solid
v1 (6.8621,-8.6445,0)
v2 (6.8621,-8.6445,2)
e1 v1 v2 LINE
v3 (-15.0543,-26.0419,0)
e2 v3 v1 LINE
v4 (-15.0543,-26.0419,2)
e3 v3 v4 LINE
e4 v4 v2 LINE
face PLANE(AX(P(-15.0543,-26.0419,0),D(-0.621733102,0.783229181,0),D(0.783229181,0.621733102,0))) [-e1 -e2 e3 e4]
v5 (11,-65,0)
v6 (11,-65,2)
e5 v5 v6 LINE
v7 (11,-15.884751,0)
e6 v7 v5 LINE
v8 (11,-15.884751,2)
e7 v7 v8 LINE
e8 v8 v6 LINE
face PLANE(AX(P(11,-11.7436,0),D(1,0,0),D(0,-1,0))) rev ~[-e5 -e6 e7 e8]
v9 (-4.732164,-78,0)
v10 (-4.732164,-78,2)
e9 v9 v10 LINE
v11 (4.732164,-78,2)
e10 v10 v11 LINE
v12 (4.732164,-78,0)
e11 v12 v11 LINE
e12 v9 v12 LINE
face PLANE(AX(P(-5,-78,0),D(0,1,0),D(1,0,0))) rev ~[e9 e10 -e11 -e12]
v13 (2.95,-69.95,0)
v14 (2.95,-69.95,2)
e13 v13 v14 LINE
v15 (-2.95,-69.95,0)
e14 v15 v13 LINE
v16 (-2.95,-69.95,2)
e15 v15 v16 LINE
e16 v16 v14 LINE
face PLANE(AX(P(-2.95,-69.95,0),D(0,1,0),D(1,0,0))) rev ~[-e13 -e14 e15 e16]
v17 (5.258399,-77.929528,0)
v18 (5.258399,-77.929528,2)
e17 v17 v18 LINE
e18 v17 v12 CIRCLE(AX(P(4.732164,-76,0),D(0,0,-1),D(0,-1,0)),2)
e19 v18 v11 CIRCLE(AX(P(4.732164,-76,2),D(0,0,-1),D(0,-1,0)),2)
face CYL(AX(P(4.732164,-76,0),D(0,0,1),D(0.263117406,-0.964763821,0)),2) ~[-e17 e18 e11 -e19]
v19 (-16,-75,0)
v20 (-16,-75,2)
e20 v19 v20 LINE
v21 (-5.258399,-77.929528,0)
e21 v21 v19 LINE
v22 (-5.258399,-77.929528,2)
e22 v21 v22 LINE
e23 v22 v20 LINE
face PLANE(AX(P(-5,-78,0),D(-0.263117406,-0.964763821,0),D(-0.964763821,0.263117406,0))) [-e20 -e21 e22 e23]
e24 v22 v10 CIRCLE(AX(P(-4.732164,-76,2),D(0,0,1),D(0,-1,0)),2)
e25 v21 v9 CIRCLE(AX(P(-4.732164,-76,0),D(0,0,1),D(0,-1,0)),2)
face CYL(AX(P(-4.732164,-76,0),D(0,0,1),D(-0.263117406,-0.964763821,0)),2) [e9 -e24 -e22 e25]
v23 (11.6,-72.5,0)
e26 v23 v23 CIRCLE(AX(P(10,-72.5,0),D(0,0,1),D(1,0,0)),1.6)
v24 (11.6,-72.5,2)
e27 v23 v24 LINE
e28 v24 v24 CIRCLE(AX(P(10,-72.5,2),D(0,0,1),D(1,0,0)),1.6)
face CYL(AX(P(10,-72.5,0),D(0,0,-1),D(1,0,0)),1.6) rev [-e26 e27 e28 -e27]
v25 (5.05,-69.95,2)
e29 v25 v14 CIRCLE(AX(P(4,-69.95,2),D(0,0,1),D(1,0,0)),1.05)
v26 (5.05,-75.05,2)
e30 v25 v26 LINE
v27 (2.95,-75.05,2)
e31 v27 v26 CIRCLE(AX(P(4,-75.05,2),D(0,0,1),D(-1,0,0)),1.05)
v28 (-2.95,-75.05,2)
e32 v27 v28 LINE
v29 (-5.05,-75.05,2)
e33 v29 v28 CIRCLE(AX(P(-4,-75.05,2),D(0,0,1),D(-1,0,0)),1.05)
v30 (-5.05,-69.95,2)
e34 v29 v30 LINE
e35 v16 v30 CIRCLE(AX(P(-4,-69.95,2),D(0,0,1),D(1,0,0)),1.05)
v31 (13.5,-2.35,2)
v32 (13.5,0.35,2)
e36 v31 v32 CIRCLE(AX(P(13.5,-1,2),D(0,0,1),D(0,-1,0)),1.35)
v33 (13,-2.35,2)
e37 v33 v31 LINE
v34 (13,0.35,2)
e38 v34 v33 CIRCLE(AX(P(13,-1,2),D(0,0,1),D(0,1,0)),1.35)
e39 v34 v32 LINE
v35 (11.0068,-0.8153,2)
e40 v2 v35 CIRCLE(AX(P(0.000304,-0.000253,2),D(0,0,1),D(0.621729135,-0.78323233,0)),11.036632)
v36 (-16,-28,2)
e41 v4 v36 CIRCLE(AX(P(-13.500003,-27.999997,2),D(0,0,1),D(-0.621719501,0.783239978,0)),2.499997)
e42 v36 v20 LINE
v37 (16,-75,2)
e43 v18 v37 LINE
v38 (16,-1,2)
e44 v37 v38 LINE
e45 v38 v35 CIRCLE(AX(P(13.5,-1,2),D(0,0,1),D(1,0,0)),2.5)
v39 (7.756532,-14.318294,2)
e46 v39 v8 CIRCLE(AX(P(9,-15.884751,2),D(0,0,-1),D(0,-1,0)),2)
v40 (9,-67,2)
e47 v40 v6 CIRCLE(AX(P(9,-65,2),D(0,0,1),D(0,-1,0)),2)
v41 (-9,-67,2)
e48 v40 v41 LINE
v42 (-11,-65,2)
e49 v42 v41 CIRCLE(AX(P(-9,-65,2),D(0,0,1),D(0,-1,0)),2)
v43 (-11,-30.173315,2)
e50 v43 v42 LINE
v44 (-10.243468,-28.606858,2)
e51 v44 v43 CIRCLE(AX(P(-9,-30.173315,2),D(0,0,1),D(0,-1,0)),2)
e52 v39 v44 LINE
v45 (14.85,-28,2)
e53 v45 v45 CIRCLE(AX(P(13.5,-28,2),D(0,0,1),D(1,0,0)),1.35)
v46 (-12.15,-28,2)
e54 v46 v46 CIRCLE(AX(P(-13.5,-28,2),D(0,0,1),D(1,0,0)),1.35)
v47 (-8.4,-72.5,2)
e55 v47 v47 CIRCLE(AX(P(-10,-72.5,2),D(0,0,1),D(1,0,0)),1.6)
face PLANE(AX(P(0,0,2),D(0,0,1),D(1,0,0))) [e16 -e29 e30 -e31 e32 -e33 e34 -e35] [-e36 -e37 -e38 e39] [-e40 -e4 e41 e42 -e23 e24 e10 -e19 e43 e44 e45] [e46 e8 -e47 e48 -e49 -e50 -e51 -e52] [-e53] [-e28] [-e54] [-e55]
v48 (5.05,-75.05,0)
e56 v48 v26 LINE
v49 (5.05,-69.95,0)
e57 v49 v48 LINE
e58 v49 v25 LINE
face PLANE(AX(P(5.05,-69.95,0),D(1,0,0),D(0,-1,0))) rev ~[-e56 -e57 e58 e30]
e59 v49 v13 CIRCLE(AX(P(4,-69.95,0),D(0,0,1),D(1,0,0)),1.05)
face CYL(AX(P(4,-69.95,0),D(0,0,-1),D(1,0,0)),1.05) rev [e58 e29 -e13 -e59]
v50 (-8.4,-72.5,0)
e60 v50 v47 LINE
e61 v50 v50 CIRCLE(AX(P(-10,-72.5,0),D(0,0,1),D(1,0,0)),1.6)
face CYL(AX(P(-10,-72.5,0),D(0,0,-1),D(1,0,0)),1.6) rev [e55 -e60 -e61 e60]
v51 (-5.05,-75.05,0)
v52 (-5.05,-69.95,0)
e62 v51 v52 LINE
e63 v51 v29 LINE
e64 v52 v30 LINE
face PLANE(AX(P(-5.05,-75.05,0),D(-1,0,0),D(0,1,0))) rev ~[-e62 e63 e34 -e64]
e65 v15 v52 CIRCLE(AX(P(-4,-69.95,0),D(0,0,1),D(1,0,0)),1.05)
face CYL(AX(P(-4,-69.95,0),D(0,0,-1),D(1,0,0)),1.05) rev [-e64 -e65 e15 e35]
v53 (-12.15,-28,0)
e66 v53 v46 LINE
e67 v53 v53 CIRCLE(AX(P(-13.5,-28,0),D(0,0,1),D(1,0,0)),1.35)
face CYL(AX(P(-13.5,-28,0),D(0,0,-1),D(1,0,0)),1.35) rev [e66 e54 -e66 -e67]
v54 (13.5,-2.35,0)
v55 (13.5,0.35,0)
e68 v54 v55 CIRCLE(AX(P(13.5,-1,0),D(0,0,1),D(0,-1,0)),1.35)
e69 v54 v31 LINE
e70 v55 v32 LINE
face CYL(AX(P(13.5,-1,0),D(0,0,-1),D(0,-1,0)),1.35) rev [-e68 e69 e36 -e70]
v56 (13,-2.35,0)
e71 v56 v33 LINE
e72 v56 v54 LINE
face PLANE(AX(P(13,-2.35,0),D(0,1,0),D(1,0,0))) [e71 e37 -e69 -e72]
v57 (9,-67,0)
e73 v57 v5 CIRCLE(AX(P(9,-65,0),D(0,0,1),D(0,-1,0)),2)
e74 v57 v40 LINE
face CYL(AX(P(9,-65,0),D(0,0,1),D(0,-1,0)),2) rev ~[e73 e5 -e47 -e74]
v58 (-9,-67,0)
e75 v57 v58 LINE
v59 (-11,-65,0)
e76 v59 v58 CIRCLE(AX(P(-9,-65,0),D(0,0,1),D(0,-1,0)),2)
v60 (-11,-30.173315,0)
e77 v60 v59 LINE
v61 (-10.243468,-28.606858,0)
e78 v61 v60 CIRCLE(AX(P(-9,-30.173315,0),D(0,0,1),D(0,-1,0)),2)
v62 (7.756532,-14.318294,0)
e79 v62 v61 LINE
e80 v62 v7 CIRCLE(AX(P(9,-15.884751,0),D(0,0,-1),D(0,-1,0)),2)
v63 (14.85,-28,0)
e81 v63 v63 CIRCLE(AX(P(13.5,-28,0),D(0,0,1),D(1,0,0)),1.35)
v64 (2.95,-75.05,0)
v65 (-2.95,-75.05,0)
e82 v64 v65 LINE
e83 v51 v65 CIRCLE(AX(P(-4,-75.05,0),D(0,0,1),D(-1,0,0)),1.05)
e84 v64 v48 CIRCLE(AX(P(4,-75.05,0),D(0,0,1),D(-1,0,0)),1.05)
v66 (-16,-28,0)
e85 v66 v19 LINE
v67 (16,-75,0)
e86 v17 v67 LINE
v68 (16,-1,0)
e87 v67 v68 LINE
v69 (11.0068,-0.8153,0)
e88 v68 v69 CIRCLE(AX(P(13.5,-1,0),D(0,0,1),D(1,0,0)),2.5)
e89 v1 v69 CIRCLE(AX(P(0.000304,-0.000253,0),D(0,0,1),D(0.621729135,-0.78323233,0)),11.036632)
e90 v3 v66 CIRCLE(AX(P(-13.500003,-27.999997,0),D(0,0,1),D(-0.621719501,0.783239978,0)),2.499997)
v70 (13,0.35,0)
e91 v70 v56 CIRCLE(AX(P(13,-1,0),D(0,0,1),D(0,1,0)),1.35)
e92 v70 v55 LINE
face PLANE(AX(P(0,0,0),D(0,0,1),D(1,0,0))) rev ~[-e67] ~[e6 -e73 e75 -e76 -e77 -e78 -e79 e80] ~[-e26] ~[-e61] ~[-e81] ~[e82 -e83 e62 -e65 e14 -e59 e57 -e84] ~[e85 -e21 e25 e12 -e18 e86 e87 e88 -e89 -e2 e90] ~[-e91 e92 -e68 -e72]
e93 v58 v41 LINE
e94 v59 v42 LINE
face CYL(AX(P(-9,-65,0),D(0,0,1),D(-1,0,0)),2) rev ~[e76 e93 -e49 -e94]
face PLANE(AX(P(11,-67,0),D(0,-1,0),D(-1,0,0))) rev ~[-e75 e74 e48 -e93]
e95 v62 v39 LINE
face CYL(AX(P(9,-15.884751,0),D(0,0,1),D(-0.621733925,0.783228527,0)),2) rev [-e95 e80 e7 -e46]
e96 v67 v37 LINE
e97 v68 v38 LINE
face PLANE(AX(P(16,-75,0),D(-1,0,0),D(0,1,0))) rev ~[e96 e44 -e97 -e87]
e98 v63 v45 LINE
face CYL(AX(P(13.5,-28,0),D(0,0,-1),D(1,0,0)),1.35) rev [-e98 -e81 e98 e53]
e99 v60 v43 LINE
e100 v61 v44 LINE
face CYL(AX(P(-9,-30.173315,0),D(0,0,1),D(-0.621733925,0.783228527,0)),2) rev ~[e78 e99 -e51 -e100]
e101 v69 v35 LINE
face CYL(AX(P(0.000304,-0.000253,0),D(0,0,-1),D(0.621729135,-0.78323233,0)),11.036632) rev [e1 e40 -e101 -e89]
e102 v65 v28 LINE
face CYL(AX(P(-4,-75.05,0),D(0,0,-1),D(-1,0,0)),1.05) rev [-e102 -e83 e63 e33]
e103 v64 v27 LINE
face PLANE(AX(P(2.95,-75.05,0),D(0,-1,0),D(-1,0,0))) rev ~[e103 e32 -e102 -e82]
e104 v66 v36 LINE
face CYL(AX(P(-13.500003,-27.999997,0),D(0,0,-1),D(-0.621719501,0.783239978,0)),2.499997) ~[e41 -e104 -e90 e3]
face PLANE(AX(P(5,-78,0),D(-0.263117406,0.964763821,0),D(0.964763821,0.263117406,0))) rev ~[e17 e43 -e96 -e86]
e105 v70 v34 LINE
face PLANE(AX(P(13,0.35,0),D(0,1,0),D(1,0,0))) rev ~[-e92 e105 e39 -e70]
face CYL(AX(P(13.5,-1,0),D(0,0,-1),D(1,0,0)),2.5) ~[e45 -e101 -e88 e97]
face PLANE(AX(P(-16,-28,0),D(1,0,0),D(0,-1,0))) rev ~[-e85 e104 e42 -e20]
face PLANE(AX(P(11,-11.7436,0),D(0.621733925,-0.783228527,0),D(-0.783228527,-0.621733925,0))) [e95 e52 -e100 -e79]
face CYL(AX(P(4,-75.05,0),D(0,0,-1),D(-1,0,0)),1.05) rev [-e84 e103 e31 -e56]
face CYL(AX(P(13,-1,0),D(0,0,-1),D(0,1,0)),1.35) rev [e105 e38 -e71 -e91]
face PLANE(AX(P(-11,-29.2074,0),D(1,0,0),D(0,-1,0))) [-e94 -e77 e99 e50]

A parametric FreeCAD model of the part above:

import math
import FreeCAD as App
import Part
import Sketcher
from FreeCAD import Vector


def edges_at(feature, points):
    """Names of the edges that pass closest to the given points."""
    edges = feature.Shape.Edges
    near = lambda p: min(range(len(edges)), key=lambda i: edges[i].distToShape(Part.Vertex(*p))[0])
    return sorted({f"Edge{near(p) + 1}" for p in points})

doc = App.newDocument("Part")
params = doc.addObject("Spreadsheet::Sheet", "Params")
for row, (alias, value) in enumerate([
    ("sketch1_diameter", "3.2 mm"),
    ("sketch1_diameter2", "2.7 mm"),
    ("sketch1_radius", "2.5 mm"),
    ("sketch1_width", "10 mm"),
    ("sketch1_radius2", "1.05 mm"),
    ("pad1_length", "2 mm"),
    ("fillet_radius", "2 mm"),
], start=1):
    params.set(f"A{row}", alias)
    params.set(f"B{row}", "=" + value)
    params.setAlias(f"B{row}", alias)

body = doc.addObject("PartDesign::Body", "Body")

# Sketch on XY plane
sketch1 = doc.addObject("Sketcher::SketchObject", "Sketch")
body.addObject(sketch1)
sketch1.AttachmentSupport = (doc.XY_Plane, [""])
sketch1.MapMode = "FlatFace"
sketch1.addGeometry([
    Part.LineSegment(Vector(-16, -75, 0), Vector(-5, -78, 0)),  # 0
    Part.LineSegment(Vector(-5, -78, 0), Vector(5, -78, 0)),  # 1
    Part.LineSegment(Vector(5, -78, 0), Vector(16, -75, 0)),  # 2
    Part.LineSegment(Vector(16, -75, 0), Vector(16, -1, 0)),  # 3
    Part.ArcOfCircle(Part.Circle(Vector(13.5, -1, 0), Vector(0, 0, 1), 2.5), math.radians(0), math.radians(176)),  # 4
    Part.ArcOfCircle(Part.Circle(Vector(0, 0, 0), Vector(0, 0, 1), 11), math.radians(-52), math.radians(-4)),  # 5
    Part.LineSegment(Vector(6.9, -8.6, 0), Vector(-15.1, -26, 0)),  # 6
    Part.ArcOfCircle(Part.Circle(Vector(-13.5, -28, 0), Vector(0, 0, 1), 2.5), math.radians(128), math.radians(180)),  # 7
    Part.LineSegment(Vector(-16, -28, 0), Vector(-16, -75, 0)),  # 8
    Part.Circle(Vector(-10, -72.5, 0), Vector(0, 0, 1), 1.6),  # 9
    Part.ArcOfCircle(Part.Circle(Vector(4, -70, 0), Vector(0, 0, 1), 1), math.radians(0), math.radians(180)),  # 10
    Part.LineSegment(Vector(5, -70, 0), Vector(5, -75, 0)),  # 11
    Part.ArcOfCircle(Part.Circle(Vector(4, -75, 0), Vector(0, 0, 1), 1), math.radians(180), math.radians(360)),  # 12
    Part.LineSegment(Vector(3, -75, 0), Vector(-3, -75, 0)),  # 13
    Part.ArcOfCircle(Part.Circle(Vector(-4, -75, 0), Vector(0, 0, 1), 1), math.radians(180), math.radians(360)),  # 14
    Part.LineSegment(Vector(-5, -75, 0), Vector(-5, -70, 0)),  # 15
    Part.ArcOfCircle(Part.Circle(Vector(-4, -70, 0), Vector(0, 0, 1), 1), math.radians(0), math.radians(180)),  # 16
    Part.LineSegment(Vector(-3, -70, 0), Vector(3, -70, 0)),  # 17
    Part.Circle(Vector(10, -72.5, 0), Vector(0, 0, 1), 1.6),  # 18
    Part.LineSegment(Vector(-11, -29.2, 0), Vector(11, -11.7, 0)),  # 19
    Part.LineSegment(Vector(11, -11.7, 0), Vector(11, -67, 0)),  # 20
    Part.LineSegment(Vector(11, -67, 0), Vector(-11, -67, 0)),  # 21
    Part.LineSegment(Vector(-11, -67, 0), Vector(-11, -29.2, 0)),  # 22
    Part.Circle(Vector(-13.5, -28, 0), Vector(0, 0, 1), 1.4),  # 23
    Part.Circle(Vector(13.5, -28, 0), Vector(0, 0, 1), 1.4),  # 24
    Part.ArcOfCircle(Part.Circle(Vector(13, -1, 0), Vector(0, 0, 1), 1.4), math.radians(90), math.radians(270)),  # 25
    Part.LineSegment(Vector(13, 0.3, 0), Vector(13.5, 0.3, 0)),  # 26
    Part.ArcOfCircle(Part.Circle(Vector(13.5, -1, 0), Vector(0, 0, 1), 1.4), math.radians(-90), math.radians(90)),  # 27
    Part.LineSegment(Vector(13.5, -2.4, 0), Vector(13, -2.4, 0)),  # 28
], False)
sketch1.addConstraint([
    Sketcher.Constraint("Coincident", 0, 2, 1, 1),
    Sketcher.Constraint("Coincident", 1, 2, 2, 1),
    Sketcher.Constraint("Coincident", 2, 2, 3, 1),
    Sketcher.Constraint("Tangent", 3, 2, 4, 1),
    Sketcher.Constraint("Tangent", 4, 2, 5, 2),
    Sketcher.Constraint("Tangent", 5, 1, 6, 1),
    Sketcher.Constraint("Tangent", 6, 2, 7, 1),
    Sketcher.Constraint("Tangent", 7, 2, 8, 1),
    Sketcher.Constraint("Coincident", 8, 2, 0, 1),
    Sketcher.Constraint("Tangent", 10, 1, 11, 1),
    Sketcher.Constraint("Tangent", 11, 2, 12, 2),
    Sketcher.Constraint("Coincident", 12, 1, 13, 1),
    Sketcher.Constraint("Coincident", 13, 2, 14, 2),
    Sketcher.Constraint("Tangent", 14, 1, 15, 1),
    Sketcher.Constraint("Tangent", 15, 2, 16, 2),
    Sketcher.Constraint("Coincident", 16, 1, 17, 1),
    Sketcher.Constraint("Coincident", 17, 2, 10, 2),
    Sketcher.Constraint("Coincident", 19, 2, 20, 1),
    Sketcher.Constraint("Coincident", 20, 2, 21, 1),
    Sketcher.Constraint("Coincident", 21, 2, 22, 1),
    Sketcher.Constraint("Coincident", 22, 2, 19, 1),
    Sketcher.Constraint("Tangent", 25, 1, 26, 1),
    Sketcher.Constraint("Tangent", 26, 2, 27, 2),
    Sketcher.Constraint("Tangent", 27, 1, 28, 1),
    Sketcher.Constraint("Tangent", 28, 2, 25, 2),
    Sketcher.Constraint("Horizontal", 1),
    Sketcher.Constraint("Vertical", 3),
    Sketcher.Constraint("Vertical", 8),
    Sketcher.Constraint("Vertical", 11),
    Sketcher.Constraint("Horizontal", 13),
    Sketcher.Constraint("Vertical", 15),
    Sketcher.Constraint("Horizontal", 17),
    Sketcher.Constraint("Vertical", 20),
    Sketcher.Constraint("Horizontal", 21),
    Sketcher.Constraint("Vertical", 22),
    Sketcher.Constraint("Horizontal", 26),
    Sketcher.Constraint("Horizontal", 28),
    Sketcher.Constraint("Coincident", 5, 3, -1, 1),
    Sketcher.Constraint("Coincident", 23, 3, 7, 3),
    Sketcher.Constraint("Coincident", 27, 3, 4, 3),
    Sketcher.Constraint("Equal", 4, 7),
    Sketcher.Constraint("Equal", 10, 12),
    Sketcher.Constraint("Equal", 12, 14),
    Sketcher.Constraint("Equal", 14, 16),
    Sketcher.Constraint("Equal", 9, 18),
    Sketcher.Constraint("Equal", 23, 24),
    Sketcher.Constraint("Equal", 24, 25),
    Sketcher.Constraint("Symmetric", 12, 3, 14, 3, -2),
    Sketcher.Constraint("Symmetric", 9, 3, 18, 3, -2),
    Sketcher.Constraint("Symmetric", 7, 3, 24, 3, -2),
    Sketcher.Constraint("Symmetric", 2, 2, 8, 2, -2),
    Sketcher.Constraint("Parallel", 6, 19),
    Sketcher.Constraint("Horizontal", 10, 3, 16, 3),
    Sketcher.Constraint("Horizontal", 11, 2, 12, 1),
    Sketcher.Constraint("Horizontal", 15, 2, 16, 1),
    Sketcher.Constraint("Equal", 0, 2),
    Sketcher.Constraint("Diameter", 9, 3.2),
    Sketcher.Constraint("Diameter", 23, 2.7),
    Sketcher.Constraint("Radius", 4, 2.5),
    Sketcher.Constraint("DistanceX", 1, 1, 1, 2, 10.0),
    Sketcher.Constraint("Radius", 10, 1.05),
    Sketcher.Constraint("DistanceX", 26, 1, 26, 2, 0.5),
    Sketcher.Constraint("DistanceY", 4, 3, -1, 1, 1.0),
    Sketcher.Constraint("DistanceX", 9, 3, -1, 1, 10.0),
    Sketcher.Constraint("DistanceX", 7, 3, 4, 3, 27.0),
    Sketcher.Constraint("DistanceY", 7, 3, 4, 3, 27.0),
    Sketcher.Constraint("DistanceX", 0, 2, 14, 3, 1.0),
    Sketcher.Constraint("DistanceY", 1, 2, 2, 2, 3.0),
    Sketcher.Constraint("DistanceX", 18, 3, 20, 2, 1.0),
    Sketcher.Constraint("DistanceX", 21, 2, 9, 3, 1.0),
    Sketcher.Constraint("DistanceY", 9, 3, -1, 1, 72.5),
    Sketcher.Constraint("DistanceY", 3, 1, 3, 2, 74.0),
    Sketcher.Constraint("DistanceY", 12, 3, 2, 2, 0.05),
    Sketcher.Constraint("DistanceY", 11, 2, 11, 1, 5.1),
    Sketcher.Constraint("DistanceY", 20, 2, -1, 1, 67.0),
    Sketcher.Constraint("DistanceY", 20, 2, 20, 1, 55.2564),
])
sketch1.setExpression("Constraints[56]", "Params.sketch1_diameter")
sketch1.setExpression("Constraints[57]", "Params.sketch1_diameter2")
sketch1.setExpression("Constraints[58]", "Params.sketch1_radius")
sketch1.setExpression("Constraints[59]", "Params.sketch1_width")
sketch1.setExpression("Constraints[60]", "Params.sketch1_radius2")
pad1 = doc.addObject("PartDesign::Pad", "Pad")
body.addObject(pad1)
pad1.Profile = sketch1
pad1.setExpression("Length", "Params.pad1_length")
doc.recompute()

fillet = doc.addObject("PartDesign::Fillet", "Fillet")
body.addObject(fillet)
fillet.Base = (pad1, edges_at(pad1, [
    (11, -11.744, 1),
    (11, -67, 1),
    (-11, -67, 1),
    (-11, -29.207, 1),
    (-5, -78, 1),
    (5, -78, 1),
]))
fillet.setExpression("Radius", "Params.fillet_radius")

doc.recompute()
